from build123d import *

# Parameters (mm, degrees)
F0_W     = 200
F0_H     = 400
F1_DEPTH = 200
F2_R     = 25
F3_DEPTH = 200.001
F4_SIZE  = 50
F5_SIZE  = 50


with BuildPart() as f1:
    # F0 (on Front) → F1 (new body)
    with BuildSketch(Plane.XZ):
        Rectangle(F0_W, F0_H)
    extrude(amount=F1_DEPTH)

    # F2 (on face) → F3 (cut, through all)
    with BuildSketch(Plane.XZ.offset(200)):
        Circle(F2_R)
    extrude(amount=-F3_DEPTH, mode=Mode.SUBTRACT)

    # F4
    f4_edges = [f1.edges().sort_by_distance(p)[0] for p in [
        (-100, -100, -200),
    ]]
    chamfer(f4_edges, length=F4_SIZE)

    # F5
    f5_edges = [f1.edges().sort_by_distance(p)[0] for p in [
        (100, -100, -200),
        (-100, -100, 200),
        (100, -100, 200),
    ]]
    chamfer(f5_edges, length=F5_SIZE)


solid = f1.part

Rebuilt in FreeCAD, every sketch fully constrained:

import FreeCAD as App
import Part
import Sketcher
from FreeCAD import Vector
Q = App.Units.Quantity


def edges_at(feature, points):
    """Names of the edges that pass closest to the given points."""
    edges = feature.Shape.Edges
    near = lambda p: min(range(len(edges)), key=lambda i: edges[i].distToShape(Part.Vertex(*p))[0])
    return sorted({f"Edge{near(p) + 1}" for p in points})


def add_polygon(sketch, points):
    """Adds a closed chain of lines whose ends are joined by coincident constraints."""
    first, n = sketch.GeometryCount, len(points)
    for a, b in zip(points, points[1:] + points[:1]):
        sketch.addGeometry(Part.LineSegment(App.Vector(*a, 0), App.Vector(*b, 0)), False)
    for i in range(n):
        sketch.addConstraint(Sketcher.Constraint("Coincident", first + i, 2, first + (i + 1) % n, 1))

doc = App.newDocument("Part")
body = doc.addObject("PartDesign::Body", "Body")

# Sketch on XZ plane
sketch1 = doc.addObject("Sketcher::SketchObject", "Sketch")
body.addObject(sketch1)
sketch1.AttachmentSupport = (doc.XZ_Plane, [""])
sketch1.MapMode = "FlatFace"
add_polygon(sketch1, [(-100, 200), (-100, -200), (100, -200), (100, 200)])  # lines 0-3
sketch1.addConstraint(Sketcher.Constraint("Vertical", 0))
sketch1.addConstraint(Sketcher.Constraint("Horizontal", 1))
sketch1.addConstraint(Sketcher.Constraint("Vertical", 2))
sketch1.addConstraint(Sketcher.Constraint("Horizontal", 3))
sketch1.addConstraint(Sketcher.Constraint("Symmetric", 0, 2, 2, 2, -1, 1))
sketch1.addConstraint(Sketcher.Constraint("DistanceX", 1, 1, 1, 2, Q("200 mm")))
sketch1.addConstraint(Sketcher.Constraint("DistanceY", 0, 2, 0, 1, Q("400 mm")))
pad1 = doc.addObject("PartDesign::Pad", "Pad")
body.addObject(pad1)
pad1.Profile = sketch1
pad1.Length = 200

# Sketch on XZ plane
sketch2 = doc.addObject("Sketcher::SketchObject", "Sketch001")
body.addObject(sketch2)
sketch2.AttachmentSupport = (doc.XZ_Plane, [""])
sketch2.MapMode = "FlatFace"
sketch2.AttachmentOffset = App.Placement(Vector(0, 0, 200), App.Rotation())
sketch2.addGeometry(Part.Circle(Vector(0, 0, 0), Vector(0, 0, 1), 25), False)
sketch2.addConstraint(Sketcher.Constraint("Coincident", 0, 3, -1, 1))
sketch2.addConstraint(Sketcher.Constraint("Diameter", 0, Q("50 mm")))
pocket1 = doc.addObject("PartDesign::Pocket", "Pocket")
body.addObject(pocket1)
pocket1.Profile = sketch2
pocket1.Type = "ThroughAll"
doc.recompute()

chamfer = doc.addObject("PartDesign::Chamfer", "Chamfer")
body.addObject(chamfer)
chamfer.Base = (pocket1, edges_at(pocket1, [(-100, -100, -200)]))
chamfer.Size = 50
doc.recompute()

chamfer2 = doc.addObject("PartDesign::Chamfer", "Chamfer001")
body.addObject(chamfer2)
chamfer2.Base = (chamfer, edges_at(chamfer, [(100, -100, -200), (-100, -100, 200), (100, -100, 200)]))
chamfer2.Size = 50

doc.recompute()
